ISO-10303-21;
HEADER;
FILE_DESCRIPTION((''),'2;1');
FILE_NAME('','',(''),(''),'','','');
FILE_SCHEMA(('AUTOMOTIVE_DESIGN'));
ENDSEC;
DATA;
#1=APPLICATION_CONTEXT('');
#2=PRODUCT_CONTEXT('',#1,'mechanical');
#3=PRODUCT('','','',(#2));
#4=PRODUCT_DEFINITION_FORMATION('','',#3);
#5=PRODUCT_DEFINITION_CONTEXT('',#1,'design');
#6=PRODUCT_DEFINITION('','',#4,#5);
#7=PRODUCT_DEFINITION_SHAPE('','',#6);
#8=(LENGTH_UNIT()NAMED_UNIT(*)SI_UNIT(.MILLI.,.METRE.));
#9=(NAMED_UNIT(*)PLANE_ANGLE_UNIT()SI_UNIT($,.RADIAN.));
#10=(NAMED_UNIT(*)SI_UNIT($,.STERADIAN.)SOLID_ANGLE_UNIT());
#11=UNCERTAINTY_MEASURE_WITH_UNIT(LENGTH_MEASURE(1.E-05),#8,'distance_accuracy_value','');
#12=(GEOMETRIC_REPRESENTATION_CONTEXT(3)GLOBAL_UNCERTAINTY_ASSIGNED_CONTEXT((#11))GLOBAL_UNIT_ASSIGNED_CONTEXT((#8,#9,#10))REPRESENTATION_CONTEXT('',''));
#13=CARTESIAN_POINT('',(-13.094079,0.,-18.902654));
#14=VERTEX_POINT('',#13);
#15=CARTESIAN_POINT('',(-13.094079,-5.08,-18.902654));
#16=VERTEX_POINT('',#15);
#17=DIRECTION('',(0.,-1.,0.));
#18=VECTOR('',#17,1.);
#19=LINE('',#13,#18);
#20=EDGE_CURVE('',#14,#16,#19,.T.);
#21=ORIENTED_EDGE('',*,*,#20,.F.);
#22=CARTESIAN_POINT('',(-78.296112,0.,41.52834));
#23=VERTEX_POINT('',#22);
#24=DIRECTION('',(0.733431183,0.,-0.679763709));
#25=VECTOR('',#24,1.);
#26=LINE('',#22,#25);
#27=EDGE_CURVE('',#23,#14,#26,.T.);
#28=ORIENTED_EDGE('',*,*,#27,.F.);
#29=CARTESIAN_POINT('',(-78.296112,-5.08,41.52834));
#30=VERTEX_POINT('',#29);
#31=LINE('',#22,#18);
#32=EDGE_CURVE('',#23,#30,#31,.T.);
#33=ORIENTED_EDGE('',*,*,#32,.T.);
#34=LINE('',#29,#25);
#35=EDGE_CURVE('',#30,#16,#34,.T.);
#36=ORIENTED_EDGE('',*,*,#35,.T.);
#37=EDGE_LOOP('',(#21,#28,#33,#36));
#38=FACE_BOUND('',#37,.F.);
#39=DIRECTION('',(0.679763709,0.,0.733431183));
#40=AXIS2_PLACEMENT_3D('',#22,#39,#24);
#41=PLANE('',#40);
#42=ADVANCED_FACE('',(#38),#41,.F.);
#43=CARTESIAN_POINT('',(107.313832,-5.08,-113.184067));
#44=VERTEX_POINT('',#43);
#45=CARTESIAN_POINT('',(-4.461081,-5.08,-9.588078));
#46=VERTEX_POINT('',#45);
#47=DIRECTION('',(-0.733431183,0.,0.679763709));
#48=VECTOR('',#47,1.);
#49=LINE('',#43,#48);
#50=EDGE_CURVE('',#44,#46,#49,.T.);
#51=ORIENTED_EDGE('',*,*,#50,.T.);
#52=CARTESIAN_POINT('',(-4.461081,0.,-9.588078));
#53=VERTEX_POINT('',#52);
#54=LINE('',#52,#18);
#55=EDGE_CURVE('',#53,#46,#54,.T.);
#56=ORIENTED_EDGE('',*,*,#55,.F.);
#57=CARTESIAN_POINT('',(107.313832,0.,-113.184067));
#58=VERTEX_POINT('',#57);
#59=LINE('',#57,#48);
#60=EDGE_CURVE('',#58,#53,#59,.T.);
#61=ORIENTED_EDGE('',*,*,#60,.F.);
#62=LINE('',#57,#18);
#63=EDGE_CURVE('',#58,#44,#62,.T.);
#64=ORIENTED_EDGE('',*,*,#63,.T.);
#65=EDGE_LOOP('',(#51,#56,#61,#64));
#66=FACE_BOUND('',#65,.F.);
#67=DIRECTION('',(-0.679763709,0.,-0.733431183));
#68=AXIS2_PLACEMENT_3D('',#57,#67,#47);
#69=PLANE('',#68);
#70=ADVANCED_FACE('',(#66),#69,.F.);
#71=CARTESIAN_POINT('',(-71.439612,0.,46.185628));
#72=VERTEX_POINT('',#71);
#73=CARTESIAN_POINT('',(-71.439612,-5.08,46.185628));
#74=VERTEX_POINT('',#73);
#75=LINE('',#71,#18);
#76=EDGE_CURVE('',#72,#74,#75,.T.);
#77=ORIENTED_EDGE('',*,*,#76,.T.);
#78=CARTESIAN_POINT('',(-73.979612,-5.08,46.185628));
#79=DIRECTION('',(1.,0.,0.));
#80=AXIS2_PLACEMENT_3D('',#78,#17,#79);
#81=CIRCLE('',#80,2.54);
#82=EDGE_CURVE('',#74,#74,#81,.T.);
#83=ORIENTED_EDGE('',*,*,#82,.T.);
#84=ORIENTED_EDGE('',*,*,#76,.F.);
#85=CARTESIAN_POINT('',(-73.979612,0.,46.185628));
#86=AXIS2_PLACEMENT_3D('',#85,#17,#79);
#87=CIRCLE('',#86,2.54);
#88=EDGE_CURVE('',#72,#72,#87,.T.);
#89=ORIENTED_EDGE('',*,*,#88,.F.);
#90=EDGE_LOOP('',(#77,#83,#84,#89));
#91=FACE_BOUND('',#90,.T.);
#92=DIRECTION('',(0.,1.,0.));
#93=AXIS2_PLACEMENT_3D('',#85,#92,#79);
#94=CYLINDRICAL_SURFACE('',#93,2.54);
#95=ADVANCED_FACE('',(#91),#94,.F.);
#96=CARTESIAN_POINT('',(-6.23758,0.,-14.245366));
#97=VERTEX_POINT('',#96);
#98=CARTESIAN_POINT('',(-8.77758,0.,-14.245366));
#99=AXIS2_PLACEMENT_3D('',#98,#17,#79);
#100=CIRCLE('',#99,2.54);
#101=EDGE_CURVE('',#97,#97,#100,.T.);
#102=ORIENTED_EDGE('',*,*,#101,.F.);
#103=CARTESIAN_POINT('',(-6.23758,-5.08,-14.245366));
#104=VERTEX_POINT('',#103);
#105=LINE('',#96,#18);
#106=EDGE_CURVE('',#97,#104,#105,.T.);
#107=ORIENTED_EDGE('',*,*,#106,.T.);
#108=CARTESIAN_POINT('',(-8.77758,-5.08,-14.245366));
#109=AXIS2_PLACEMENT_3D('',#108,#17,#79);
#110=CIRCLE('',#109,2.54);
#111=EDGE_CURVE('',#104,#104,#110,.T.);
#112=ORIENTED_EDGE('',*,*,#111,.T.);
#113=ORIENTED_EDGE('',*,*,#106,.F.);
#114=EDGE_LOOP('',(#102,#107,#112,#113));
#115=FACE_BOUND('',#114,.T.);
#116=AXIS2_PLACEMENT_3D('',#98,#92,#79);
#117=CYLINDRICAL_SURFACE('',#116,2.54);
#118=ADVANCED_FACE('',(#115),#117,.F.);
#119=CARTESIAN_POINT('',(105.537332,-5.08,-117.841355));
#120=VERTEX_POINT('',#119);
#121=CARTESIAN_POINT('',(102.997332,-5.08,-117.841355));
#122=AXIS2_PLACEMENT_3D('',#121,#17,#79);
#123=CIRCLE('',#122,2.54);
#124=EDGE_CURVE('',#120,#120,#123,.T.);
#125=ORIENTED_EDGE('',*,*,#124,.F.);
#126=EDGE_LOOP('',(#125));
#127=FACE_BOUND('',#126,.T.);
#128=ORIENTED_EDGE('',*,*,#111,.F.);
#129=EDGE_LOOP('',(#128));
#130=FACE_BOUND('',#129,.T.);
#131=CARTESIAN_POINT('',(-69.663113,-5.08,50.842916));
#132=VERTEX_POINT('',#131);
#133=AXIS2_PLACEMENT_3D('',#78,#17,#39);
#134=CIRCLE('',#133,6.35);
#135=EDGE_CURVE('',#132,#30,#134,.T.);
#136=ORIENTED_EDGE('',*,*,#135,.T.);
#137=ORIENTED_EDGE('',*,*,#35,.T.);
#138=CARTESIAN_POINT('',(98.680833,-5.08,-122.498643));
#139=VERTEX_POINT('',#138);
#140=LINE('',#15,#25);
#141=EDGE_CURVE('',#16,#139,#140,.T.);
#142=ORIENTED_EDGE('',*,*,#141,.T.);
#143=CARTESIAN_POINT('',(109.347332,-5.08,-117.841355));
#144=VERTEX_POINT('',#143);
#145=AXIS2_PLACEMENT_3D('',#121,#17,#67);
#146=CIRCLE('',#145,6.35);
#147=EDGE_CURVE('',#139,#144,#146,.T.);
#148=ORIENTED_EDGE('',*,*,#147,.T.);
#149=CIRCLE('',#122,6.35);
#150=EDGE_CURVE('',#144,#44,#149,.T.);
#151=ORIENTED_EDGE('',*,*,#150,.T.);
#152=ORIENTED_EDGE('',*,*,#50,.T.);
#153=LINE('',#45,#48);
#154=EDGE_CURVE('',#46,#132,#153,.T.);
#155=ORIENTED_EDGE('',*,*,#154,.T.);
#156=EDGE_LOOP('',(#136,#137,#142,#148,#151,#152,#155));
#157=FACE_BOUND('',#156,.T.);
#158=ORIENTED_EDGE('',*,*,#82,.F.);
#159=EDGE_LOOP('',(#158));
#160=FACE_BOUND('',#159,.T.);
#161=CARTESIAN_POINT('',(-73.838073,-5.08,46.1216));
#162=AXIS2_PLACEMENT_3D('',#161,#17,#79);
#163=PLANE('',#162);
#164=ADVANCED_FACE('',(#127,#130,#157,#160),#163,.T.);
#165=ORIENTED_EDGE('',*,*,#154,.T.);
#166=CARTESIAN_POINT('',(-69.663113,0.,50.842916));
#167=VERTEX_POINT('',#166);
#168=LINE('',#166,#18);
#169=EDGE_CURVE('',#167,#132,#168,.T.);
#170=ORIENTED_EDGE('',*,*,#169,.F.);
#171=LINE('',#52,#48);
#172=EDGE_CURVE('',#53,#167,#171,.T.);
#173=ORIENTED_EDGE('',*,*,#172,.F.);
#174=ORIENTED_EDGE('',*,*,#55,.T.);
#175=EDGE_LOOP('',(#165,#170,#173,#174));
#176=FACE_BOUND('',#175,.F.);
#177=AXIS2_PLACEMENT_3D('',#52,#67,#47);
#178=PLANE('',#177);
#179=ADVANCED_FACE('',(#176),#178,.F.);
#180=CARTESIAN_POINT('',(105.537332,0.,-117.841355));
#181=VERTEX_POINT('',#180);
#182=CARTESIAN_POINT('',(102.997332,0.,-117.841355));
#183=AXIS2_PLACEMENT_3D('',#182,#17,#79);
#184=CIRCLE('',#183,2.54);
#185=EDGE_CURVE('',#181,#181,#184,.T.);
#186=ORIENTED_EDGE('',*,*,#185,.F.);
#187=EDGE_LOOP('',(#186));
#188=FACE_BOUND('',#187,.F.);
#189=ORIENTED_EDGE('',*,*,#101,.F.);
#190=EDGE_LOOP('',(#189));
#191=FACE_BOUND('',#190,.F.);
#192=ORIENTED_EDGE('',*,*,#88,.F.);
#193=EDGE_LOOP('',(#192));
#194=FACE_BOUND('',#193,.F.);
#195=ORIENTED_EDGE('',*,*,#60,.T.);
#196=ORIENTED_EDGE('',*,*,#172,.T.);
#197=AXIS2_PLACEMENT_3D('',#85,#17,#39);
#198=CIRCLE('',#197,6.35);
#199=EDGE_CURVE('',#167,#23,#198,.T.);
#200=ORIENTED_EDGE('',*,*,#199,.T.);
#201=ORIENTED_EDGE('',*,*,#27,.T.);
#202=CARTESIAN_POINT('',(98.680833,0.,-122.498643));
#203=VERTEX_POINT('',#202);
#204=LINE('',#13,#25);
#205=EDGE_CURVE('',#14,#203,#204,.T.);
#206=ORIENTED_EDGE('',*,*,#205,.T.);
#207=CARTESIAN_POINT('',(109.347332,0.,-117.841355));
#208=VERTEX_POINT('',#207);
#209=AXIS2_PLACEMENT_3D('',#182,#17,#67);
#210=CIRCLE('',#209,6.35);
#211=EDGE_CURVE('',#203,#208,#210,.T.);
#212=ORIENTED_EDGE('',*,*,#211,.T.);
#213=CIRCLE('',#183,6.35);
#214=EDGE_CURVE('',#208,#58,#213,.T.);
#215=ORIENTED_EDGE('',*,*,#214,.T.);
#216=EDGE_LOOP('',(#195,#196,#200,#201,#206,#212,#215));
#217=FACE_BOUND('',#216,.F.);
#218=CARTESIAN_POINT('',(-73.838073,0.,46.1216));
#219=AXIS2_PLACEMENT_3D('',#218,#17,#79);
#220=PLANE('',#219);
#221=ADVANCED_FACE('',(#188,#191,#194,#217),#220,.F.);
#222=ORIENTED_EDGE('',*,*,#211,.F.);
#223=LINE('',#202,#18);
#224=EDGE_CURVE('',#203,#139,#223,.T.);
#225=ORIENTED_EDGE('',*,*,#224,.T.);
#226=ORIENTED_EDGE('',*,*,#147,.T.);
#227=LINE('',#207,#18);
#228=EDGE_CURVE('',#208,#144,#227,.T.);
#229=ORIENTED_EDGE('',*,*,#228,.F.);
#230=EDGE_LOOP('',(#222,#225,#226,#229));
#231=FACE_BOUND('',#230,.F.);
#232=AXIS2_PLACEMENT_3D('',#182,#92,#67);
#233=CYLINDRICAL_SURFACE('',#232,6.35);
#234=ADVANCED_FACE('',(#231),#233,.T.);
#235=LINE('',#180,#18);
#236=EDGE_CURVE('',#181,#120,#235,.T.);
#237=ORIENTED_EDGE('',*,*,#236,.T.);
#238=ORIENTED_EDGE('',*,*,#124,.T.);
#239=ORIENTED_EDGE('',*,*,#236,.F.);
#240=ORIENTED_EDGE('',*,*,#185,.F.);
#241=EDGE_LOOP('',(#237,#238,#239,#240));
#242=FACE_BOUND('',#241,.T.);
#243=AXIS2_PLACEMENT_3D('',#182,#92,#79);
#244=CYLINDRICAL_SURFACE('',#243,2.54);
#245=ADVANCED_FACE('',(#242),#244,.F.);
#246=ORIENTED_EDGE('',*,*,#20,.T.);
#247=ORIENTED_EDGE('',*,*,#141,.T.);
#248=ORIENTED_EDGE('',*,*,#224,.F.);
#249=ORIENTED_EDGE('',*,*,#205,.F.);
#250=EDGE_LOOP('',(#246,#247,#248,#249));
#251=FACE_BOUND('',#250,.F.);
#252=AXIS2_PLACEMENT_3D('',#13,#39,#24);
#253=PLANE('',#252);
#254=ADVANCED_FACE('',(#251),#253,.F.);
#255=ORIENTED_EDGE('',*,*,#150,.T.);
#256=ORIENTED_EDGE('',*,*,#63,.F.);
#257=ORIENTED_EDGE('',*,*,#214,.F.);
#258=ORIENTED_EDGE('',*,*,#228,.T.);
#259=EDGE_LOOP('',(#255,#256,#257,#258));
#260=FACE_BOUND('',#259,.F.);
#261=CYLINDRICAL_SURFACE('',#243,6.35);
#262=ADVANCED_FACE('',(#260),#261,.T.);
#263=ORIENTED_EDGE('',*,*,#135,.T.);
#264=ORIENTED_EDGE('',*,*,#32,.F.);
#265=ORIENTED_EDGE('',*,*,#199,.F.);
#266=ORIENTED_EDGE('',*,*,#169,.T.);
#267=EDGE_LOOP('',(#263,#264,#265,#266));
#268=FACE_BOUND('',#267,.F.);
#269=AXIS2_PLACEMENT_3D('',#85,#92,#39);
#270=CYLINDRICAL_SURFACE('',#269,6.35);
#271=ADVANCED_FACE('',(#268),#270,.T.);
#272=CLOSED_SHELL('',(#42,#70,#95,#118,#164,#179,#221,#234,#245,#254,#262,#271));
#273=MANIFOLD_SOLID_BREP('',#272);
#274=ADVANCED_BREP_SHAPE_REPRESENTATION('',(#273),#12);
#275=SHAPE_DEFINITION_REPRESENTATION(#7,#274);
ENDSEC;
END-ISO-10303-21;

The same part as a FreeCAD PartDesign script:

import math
import FreeCAD as App
import Part
import Sketcher
Q = App.Units.Quantity

doc = App.newDocument("Part")
body = doc.addObject("PartDesign::Body", "Body")

sketch1 = body.newObject("Sketcher::SketchObject", "Sketch")
sketch1.AttachmentSupport = (doc.getObject("XZ_Plane"), [""])
sketch1.MapMode = "FlatFace"
sketch1.addGeometry([
    Part.ArcOfCircle(Part.Circle(App.Vector(-73.979612, 46.185628, 0), App.Vector(0, 0, 1), 6.35), math.radians(47.174819), math.radians(227.174819)),
    Part.LineSegment(App.Vector(-78.296112, 41.52834, 0), App.Vector(-13.094079, -18.902654, 0)),
    Part.LineSegment(App.Vector(-13.094079, -18.902654, 0), App.Vector(98.680833, -122.498643, 0)),
    Part.ArcOfCircle(Part.Circle(App.Vector(102.997332, -117.841355, 0), App.Vector(0, 0, 1), 6.35), math.radians(-132.825181), math.radians(0)),
    Part.ArcOfCircle(Part.Circle(App.Vector(102.997332, -117.841355, 0), App.Vector(0, 0, 1), 6.35), math.radians(0), math.radians(47.174819)),
    Part.LineSegment(App.Vector(107.313832, -113.184067, 0), App.Vector(-4.461081, -9.588078, 0)),
    Part.LineSegment(App.Vector(-4.461081, -9.588078, 0), App.Vector(-69.663113, 50.842916, 0)),
    Part.Circle(App.Vector(102.997332, -117.841355, 0), App.Vector(0, 0, 1), 2.54),
    Part.Circle(App.Vector(-8.77758, -14.245366, 0), App.Vector(0, 0, 1), 2.54),
    Part.Circle(App.Vector(-73.979612, 46.185628, 0), App.Vector(0, 0, 1), 2.54),
], False)
sketch1.addConstraint([
    Sketcher.Constraint("Tangent", 0, 2, 1, 1),
    Sketcher.Constraint("Coincident", 1, 2, 2, 1),
    Sketcher.Constraint("Tangent", 2, 2, 3, 1),
    Sketcher.Constraint("Tangent", 3, 2, 4, 1),
    Sketcher.Constraint("Tangent", 4, 2, 5, 1),
    Sketcher.Constraint("Coincident", 5, 2, 6, 1),
    Sketcher.Constraint("Tangent", 6, 2, 0, 1),
    Sketcher.Constraint("Coincident", 7, 3, 3, 3),
    Sketcher.Constraint("Coincident", 9, 3, 0, 3),
    Sketcher.Constraint("Equal", 0, 3),
    Sketcher.Constraint("Equal", 3, 4),
    Sketcher.Constraint("Equal", 7, 8),
    Sketcher.Constraint("Equal", 8, 9),
    Sketcher.Constraint("Parallel", 1, 2),
    Sketcher.Constraint("Parallel", 2, 5),
    Sketcher.Constraint("Horizontal", 7, 3, 3, 2),
    Sketcher.Constraint("Equal", 2, 5),
    Sketcher.Constraint("Diameter", 7, Q("0.2 in")),
    Sketcher.Constraint("Radius", 0, Q("0.25 in")),
    Sketcher.Constraint("Distance", 2, Q("6 in")),
    Sketcher.Constraint("Distance", 1, Q("3.5 in")),
    Sketcher.Constraint("DistanceX", 0, 2, 0, 3, Q("4.3165 mm")),
    Sketcher.Constraint("DistanceX", 1, 2, 8, 3, Q("4.316499 mm")),
    Sketcher.Constraint("DistanceY", -1, 1, 0, 3, Q("46.185628 mm")),
    Sketcher.Constraint("DistanceX", 8, 3, -1, 1, Q("8.77758 mm")),
    Sketcher.Constraint("DistanceY", 3, 3, 8, 3, Q("103.595989 mm")),
])
pad1 = body.newObject("PartDesign::Pad", "Pad")
pad1.Profile = sketch1
pad1.Length = Q("0.2 in")

doc.recompute()
